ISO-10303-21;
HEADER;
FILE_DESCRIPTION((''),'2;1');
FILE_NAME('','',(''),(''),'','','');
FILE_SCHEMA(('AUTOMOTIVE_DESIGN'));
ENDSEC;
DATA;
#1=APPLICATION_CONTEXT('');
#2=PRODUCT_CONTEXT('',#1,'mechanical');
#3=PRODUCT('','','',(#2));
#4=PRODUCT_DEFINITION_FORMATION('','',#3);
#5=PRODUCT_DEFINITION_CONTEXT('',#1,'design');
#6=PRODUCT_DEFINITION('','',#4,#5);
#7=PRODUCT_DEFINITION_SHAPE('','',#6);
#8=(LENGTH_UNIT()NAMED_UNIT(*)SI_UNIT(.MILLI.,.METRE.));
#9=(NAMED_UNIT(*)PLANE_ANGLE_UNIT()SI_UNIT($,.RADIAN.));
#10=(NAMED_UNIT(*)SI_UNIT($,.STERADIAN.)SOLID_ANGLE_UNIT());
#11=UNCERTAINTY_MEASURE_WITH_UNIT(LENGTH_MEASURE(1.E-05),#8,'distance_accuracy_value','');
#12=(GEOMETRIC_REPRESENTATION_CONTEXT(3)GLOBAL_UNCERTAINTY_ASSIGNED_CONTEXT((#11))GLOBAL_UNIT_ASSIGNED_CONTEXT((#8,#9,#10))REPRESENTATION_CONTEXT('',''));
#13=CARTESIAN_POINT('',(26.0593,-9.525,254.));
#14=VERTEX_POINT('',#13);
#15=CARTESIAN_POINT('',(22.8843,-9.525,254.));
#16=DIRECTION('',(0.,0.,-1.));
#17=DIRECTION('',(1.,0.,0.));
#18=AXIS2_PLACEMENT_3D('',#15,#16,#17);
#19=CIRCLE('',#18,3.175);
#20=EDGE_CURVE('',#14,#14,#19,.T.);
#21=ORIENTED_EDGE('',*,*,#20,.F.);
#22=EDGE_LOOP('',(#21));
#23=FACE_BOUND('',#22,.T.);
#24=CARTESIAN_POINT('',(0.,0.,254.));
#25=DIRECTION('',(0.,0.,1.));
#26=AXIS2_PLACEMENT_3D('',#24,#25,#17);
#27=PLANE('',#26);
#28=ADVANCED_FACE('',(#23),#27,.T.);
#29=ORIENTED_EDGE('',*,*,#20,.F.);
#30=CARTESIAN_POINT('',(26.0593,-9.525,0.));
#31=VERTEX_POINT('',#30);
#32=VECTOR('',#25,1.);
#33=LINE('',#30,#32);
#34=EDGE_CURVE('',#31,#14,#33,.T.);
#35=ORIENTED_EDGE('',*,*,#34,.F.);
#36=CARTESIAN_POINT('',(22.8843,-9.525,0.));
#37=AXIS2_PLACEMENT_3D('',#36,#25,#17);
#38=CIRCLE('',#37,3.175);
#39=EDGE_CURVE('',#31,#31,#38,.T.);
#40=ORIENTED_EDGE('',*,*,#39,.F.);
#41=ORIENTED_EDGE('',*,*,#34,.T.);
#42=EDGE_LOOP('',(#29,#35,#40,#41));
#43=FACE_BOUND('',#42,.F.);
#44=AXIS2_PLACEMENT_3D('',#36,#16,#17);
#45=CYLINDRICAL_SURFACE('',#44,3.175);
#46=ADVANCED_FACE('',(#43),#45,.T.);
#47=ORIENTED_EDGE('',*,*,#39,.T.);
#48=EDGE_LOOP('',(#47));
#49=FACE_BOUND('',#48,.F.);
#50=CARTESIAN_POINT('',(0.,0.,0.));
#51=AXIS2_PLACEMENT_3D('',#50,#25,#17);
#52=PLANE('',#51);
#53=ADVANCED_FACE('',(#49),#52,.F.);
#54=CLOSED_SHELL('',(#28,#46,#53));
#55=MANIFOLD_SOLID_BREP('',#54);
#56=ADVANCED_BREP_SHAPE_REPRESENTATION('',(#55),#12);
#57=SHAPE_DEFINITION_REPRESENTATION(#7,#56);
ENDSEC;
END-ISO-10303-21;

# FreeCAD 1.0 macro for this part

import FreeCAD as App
import Part
import Sketcher

V = App.Vector
Q = App.Units.Quantity

doc = App.newDocument("Part")
body = doc.addObject("PartDesign::Body", "Body")

# Sketch on XY plane
sketch1 = body.newObject("Sketcher::SketchObject", "Sketch")
sketch1.AttachmentSupport = (doc.getObject("XY_Plane"), [""])
sketch1.MapMode = "FlatFace"
sketch1.addGeometry(Part.Circle(V(22.9, -9.5, 0), V(0, 0, 1), 3.2), False)
sketch1.addConstraint([
    Sketcher.Constraint("Diameter", 0, Q("0.25 in")),
    Sketcher.Constraint("DistanceY", 0, 3, -1, 1, Q("0.375 in")),
    Sketcher.Constraint("DistanceX", -1, 1, 0, 3, 22.8843),
])
pad1 = body.newObject("PartDesign::Pad", "Pad")
pad1.Profile = sketch1
pad1.Length = Q("10 in")

doc.recompute()
